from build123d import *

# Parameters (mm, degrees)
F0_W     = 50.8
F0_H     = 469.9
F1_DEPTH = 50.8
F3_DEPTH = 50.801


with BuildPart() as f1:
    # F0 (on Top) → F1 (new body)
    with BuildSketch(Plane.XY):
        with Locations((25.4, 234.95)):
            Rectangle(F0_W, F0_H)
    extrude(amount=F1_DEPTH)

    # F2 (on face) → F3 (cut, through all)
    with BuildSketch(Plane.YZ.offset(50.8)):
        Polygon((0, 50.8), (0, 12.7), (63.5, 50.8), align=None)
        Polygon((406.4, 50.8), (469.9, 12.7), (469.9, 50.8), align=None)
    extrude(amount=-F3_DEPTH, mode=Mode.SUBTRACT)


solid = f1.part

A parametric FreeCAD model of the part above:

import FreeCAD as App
import Part
import Sketcher

V = App.Vector
Q = App.Units.Quantity


def add_polygon(sketch, points):
    """Adds a closed chain of lines whose ends are joined by coincident constraints."""
    first, n = sketch.GeometryCount, len(points)
    for a, b in zip(points, points[1:] + points[:1]):
        sketch.addGeometry(Part.LineSegment(App.Vector(*a, 0), App.Vector(*b, 0)), False)
    for i in range(n):
        sketch.addConstraint(Sketcher.Constraint("Coincident", first + i, 2, first + (i + 1) % n, 1))

doc = App.newDocument("Part")
body = doc.addObject("PartDesign::Body", "Body")

# Sketch on XY plane
sketch1 = doc.addObject("Sketcher::SketchObject", "Sketch")
body.addObject(sketch1)
sketch1.AttachmentSupport = (doc.XY_Plane, [""])
sketch1.MapMode = "FlatFace"
add_polygon(sketch1, [(0, 469.9), (0, 0), (50.8, 0), (50.8, 469.9)])  # lines 0-3
sketch1.addConstraint([
    Sketcher.Constraint("Vertical", 0),
    Sketcher.Constraint("Horizontal", 1),
    Sketcher.Constraint("Vertical", 2),
    Sketcher.Constraint("Horizontal", 3),
    Sketcher.Constraint("Coincident", 0, 2, -1, 1),
    Sketcher.Constraint("DistanceX", 1, 1, 1, 2, Q("2 in")),
    Sketcher.Constraint("DistanceY", 0, 2, 0, 1, Q("18.5 in")),
])
pad1 = doc.addObject("PartDesign::Pad", "Pad")
body.addObject(pad1)
pad1.Profile = sketch1
pad1.Length = Q("2 in")

# Sketch on YZ plane
sketch2 = doc.addObject("Sketcher::SketchObject", "Sketch001")
body.addObject(sketch2)
sketch2.AttachmentSupport = (doc.YZ_Plane, [""])
sketch2.MapMode = "FlatFace"
sketch2.AttachmentOffset = App.Placement(V(0, 0, 2 * 25.4), App.Rotation())
add_polygon(sketch2, [(0, 50.8), (0, 12.7), (63.5, 50.8)])  # lines 0-2
add_polygon(sketch2, [(406.4, 50.8), (469.9, 12.7), (469.9, 50.8)])  # lines 3-5
sketch2.addConstraint([
    Sketcher.Constraint("Vertical", 0),
    Sketcher.Constraint("Horizontal", 2),
    Sketcher.Constraint("Vertical", 4),
    Sketcher.Constraint("Horizontal", 5),
    Sketcher.Constraint("PointOnObject", 0, 2, -2),
    Sketcher.Constraint("Horizontal", 0, 2, 3, 2),
    Sketcher.Constraint("Horizontal", 2, 2, 4, 2),
    Sketcher.Constraint("Equal", 2, 5),
    Sketcher.Constraint("DistanceX", 2, 2, 2, 1, Q("2.5 in")),
    Sketcher.Constraint("DistanceY", 0, 2, 0, 1, Q("1.5 in")),
    Sketcher.Constraint("DistanceY", -1, 1, 1, 2, Q("2 in")),
    Sketcher.Constraint("DistanceX", -1, 1, 5, 2, Q("16 in")),
])
pocket1 = doc.addObject("PartDesign::Pocket", "Pocket")
body.addObject(pocket1)
pocket1.Profile = sketch2
pocket1.Type = "ThroughAll"

doc.recompute()
